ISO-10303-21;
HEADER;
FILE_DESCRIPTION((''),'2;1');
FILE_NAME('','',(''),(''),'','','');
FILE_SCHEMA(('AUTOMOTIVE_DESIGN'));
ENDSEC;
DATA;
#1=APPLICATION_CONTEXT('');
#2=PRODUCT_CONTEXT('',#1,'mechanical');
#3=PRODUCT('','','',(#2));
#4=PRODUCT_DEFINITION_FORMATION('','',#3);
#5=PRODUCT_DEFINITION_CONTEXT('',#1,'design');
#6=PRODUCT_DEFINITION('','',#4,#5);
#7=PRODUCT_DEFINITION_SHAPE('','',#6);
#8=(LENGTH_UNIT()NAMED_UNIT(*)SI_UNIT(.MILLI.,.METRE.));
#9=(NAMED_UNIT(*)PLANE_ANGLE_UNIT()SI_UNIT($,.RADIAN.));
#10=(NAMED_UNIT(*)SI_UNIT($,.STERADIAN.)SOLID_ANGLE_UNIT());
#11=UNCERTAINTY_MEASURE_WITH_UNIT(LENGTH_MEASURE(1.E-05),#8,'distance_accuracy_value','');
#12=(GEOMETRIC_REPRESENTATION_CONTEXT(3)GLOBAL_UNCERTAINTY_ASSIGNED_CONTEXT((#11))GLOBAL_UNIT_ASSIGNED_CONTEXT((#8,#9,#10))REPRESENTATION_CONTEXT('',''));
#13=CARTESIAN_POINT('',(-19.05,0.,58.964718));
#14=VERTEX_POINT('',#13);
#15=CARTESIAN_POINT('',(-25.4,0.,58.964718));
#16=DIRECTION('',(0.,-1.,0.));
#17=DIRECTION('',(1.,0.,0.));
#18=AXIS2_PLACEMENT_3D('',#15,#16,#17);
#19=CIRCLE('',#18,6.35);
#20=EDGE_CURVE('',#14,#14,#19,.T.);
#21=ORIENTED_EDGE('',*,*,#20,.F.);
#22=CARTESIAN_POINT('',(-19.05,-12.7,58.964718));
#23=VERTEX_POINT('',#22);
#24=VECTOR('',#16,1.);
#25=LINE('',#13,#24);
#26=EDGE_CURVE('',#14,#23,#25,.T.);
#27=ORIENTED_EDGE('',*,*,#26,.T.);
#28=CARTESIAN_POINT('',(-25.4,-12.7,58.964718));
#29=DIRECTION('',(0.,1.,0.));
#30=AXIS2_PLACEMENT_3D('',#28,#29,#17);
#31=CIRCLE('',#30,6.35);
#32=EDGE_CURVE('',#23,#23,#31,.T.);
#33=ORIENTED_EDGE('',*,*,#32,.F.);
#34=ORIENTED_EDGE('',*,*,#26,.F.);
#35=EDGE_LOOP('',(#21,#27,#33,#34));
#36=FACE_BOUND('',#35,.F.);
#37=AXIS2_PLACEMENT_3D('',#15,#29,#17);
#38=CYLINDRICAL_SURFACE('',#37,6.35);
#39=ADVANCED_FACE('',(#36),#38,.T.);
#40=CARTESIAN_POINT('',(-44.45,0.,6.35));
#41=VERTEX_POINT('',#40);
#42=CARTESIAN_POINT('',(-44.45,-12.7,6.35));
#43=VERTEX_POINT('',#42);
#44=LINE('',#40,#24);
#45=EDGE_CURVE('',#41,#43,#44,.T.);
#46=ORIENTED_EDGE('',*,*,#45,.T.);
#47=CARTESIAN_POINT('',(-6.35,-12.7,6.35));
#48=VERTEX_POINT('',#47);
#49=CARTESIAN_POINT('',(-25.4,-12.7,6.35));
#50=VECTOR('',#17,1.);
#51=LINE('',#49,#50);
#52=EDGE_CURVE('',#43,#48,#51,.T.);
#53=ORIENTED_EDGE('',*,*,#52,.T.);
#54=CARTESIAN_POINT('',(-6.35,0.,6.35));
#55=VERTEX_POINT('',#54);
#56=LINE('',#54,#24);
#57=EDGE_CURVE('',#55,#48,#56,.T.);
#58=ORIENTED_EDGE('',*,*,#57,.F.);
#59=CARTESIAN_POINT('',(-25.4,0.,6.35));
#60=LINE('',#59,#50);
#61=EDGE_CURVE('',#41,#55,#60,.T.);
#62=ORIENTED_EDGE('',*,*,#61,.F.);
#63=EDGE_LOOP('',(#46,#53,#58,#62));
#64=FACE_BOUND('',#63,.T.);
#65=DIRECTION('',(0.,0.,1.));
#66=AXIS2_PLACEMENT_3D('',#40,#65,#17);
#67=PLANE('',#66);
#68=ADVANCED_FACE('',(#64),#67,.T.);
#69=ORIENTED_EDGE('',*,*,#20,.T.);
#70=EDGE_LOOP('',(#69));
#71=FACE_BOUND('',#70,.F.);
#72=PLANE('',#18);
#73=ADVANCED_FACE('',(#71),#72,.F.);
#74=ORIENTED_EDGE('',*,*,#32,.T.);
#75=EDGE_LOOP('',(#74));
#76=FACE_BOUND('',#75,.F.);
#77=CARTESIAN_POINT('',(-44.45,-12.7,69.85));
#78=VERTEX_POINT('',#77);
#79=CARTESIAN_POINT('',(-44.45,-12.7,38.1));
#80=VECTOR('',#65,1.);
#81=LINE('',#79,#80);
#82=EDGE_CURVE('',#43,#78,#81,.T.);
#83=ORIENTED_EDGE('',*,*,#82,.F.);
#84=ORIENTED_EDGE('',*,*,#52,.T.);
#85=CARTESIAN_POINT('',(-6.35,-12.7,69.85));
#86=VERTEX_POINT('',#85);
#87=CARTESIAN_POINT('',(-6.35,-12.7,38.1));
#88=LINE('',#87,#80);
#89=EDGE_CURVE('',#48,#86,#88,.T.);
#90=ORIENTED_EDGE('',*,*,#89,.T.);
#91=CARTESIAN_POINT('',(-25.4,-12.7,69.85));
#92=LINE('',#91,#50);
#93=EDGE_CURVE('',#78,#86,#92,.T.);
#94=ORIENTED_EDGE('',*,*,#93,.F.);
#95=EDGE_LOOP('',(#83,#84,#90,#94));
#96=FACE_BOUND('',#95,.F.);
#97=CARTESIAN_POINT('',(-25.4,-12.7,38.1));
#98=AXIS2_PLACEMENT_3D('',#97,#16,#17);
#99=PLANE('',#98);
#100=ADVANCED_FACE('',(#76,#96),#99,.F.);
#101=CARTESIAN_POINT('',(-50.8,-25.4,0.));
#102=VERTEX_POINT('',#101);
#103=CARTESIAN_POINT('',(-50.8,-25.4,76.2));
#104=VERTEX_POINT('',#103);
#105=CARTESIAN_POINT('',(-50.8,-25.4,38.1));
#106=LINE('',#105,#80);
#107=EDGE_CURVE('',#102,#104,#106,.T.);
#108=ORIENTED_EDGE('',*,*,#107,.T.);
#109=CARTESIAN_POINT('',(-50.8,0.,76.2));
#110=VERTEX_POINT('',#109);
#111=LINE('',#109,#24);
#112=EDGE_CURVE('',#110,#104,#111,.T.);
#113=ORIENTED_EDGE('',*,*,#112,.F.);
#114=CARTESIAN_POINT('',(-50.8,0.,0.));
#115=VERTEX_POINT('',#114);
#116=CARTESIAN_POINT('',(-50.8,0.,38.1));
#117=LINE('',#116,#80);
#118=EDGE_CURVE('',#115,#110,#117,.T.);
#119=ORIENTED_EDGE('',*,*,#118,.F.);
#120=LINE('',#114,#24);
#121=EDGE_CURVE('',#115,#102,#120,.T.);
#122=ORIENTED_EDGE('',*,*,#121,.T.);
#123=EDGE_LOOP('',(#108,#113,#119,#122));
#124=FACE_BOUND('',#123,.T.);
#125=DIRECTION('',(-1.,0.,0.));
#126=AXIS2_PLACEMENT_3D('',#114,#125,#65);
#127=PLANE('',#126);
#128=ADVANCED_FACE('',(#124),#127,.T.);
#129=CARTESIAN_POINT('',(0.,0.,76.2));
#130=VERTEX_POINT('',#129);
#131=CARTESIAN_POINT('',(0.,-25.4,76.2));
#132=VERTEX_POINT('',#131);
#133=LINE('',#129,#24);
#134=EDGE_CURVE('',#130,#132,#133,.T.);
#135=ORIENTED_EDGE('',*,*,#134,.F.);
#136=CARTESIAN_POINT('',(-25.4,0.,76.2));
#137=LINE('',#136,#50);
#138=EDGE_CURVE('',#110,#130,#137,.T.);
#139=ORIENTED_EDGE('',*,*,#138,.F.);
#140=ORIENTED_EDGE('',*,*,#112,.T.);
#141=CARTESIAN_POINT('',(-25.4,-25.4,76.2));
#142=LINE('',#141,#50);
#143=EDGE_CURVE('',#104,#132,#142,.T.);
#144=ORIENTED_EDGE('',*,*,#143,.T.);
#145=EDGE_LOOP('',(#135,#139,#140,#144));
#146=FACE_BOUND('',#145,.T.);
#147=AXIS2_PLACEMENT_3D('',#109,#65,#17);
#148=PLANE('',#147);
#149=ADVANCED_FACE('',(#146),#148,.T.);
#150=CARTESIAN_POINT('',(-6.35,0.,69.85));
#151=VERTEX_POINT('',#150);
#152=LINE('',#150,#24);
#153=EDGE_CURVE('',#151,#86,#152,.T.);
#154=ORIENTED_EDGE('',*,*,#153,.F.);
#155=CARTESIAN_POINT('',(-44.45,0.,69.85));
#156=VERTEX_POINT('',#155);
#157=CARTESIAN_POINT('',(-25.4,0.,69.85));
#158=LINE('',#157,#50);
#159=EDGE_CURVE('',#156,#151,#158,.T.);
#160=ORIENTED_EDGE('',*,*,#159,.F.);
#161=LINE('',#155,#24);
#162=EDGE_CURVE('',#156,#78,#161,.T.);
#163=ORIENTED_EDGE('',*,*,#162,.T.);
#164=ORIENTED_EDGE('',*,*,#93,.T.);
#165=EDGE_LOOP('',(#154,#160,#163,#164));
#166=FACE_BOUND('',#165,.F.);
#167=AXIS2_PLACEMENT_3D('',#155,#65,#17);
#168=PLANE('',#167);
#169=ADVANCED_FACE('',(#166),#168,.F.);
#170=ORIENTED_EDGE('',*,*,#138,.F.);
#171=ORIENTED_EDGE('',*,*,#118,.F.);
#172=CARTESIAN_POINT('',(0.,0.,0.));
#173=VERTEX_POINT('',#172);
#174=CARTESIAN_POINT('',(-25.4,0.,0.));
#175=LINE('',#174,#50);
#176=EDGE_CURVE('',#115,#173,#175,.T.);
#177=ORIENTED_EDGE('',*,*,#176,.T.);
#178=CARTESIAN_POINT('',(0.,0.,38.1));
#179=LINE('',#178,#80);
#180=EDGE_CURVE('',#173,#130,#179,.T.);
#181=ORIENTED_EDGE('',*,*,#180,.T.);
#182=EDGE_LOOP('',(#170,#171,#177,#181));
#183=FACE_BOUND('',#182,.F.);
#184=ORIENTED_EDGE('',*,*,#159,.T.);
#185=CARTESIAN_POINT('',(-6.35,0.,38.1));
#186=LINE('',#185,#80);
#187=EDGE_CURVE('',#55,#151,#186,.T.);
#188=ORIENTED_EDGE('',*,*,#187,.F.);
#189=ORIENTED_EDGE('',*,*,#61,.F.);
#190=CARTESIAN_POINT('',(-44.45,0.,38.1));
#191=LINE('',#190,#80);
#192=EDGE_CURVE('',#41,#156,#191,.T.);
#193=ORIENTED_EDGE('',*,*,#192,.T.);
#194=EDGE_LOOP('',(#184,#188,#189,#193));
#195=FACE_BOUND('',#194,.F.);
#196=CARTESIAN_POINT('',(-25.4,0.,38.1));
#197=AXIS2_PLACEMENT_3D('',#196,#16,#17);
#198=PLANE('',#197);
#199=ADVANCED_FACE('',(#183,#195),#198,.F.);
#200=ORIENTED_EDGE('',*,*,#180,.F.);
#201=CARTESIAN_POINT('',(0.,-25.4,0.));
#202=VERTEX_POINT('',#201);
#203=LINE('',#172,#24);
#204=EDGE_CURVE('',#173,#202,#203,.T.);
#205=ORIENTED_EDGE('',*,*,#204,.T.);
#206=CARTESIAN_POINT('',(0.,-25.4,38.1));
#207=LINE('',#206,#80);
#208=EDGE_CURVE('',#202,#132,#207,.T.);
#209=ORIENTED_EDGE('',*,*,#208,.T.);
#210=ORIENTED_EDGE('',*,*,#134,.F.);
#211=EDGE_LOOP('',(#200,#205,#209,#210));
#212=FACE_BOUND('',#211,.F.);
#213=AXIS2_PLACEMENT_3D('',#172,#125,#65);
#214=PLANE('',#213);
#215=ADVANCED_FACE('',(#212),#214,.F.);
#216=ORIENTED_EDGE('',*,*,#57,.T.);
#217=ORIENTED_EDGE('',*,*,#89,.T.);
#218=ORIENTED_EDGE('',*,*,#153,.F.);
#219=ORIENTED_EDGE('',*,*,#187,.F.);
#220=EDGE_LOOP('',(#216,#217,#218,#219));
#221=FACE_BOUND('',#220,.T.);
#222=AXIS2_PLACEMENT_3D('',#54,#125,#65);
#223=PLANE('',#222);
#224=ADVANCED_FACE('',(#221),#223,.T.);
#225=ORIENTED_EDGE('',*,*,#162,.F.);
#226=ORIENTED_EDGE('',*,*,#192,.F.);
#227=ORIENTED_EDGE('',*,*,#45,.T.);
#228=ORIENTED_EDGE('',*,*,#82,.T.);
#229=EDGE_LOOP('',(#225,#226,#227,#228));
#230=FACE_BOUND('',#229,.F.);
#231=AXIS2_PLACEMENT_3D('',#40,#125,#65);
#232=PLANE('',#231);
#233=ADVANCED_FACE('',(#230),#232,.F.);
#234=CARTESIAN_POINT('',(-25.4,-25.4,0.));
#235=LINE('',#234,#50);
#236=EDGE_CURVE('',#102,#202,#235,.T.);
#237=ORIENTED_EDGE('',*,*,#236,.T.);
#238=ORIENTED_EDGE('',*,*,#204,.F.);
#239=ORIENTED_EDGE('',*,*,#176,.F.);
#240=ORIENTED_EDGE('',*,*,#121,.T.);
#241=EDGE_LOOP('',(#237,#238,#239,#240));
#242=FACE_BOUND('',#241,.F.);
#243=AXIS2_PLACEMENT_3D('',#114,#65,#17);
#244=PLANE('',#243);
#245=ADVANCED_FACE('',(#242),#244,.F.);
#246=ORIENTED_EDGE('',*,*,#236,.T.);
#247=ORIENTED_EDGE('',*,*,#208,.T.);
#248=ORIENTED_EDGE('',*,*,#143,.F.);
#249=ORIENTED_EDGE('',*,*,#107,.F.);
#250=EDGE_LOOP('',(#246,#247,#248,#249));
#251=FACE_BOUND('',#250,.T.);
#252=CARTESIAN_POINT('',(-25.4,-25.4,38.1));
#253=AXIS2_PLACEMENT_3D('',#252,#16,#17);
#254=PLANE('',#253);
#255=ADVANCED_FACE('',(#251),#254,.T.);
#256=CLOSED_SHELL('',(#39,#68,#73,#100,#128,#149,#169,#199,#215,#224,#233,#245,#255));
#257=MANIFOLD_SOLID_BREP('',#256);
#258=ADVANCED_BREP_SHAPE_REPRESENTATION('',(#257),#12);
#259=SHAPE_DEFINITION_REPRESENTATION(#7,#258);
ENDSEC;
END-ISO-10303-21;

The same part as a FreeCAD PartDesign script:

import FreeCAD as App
import Part
import Sketcher
Q = App.Units.Quantity


def add_polygon(sketch, points):
    """Adds a closed chain of lines whose ends are joined by coincident constraints."""
    first, n = sketch.GeometryCount, len(points)
    for a, b in zip(points, points[1:] + points[:1]):
        sketch.addGeometry(Part.LineSegment(App.Vector(*a, 0), App.Vector(*b, 0)), False)
    for i in range(n):
        sketch.addConstraint(Sketcher.Constraint("Coincident", first + i, 2, first + (i + 1) % n, 1))

doc = App.newDocument("Part")
params = doc.addObject("Spreadsheet::Sheet", "Params")
for row, (alias, value) in enumerate([
    ("sketch1_width", "2 in"),
    ("sketch1_height", "3 in"),
    ("pad1_length", "1 in"),
    ("sketch2_width", "1.5 in"),
    ("sketch2_height", "2.5 in"),
    ("pocket1_length", "0.5 in"),
    ("sketch3_diameter", "0.5 in"),
    ("pad2_length", "1 in"),
], start=1):
    params.set(f"A{row}", alias)
    params.set(f"B{row}", "=" + value)
    params.setAlias(f"B{row}", alias)

body = doc.addObject("PartDesign::Body", "Body")

# Sketch on XZ plane
sketch1 = body.newObject("Sketcher::SketchObject", "Sketch")
sketch1.AttachmentSupport = (doc.getObject("XZ_Plane"), [""])
sketch1.MapMode = "FlatFace"
add_polygon(sketch1, [(-50.8, 76.2), (-50.8, 0), (0, 0), (0, 76.2)])  # lines 0-3
sketch1.addConstraint([
    Sketcher.Constraint("Vertical", 0),
    Sketcher.Constraint("Horizontal", 1),
    Sketcher.Constraint("Vertical", 2),
    Sketcher.Constraint("Horizontal", 3),
    Sketcher.Constraint("Coincident", 1, 2, -1, 1),
    Sketcher.Constraint("DistanceX", 1, 1, 1, 2, Q("2 in")),
    Sketcher.Constraint("DistanceY", 0, 2, 0, 1, Q("3 in")),
])
sketch1.setExpression("Constraints[9]", "Params.sketch1_width")
sketch1.setExpression("Constraints[10]", "Params.sketch1_height")
pad1 = body.newObject("PartDesign::Pad", "Pad")
pad1.Profile = sketch1
pad1.setExpression("Length", "Params.pad1_length")

# Sketch on XZ plane
sketch2 = body.newObject("Sketcher::SketchObject", "Sketch001")
sketch2.AttachmentSupport = (doc.getObject("XZ_Plane"), [""])
sketch2.MapMode = "FlatFace"
add_polygon(sketch2, [(-44.45, 69.85), (-44.45, 6.35), (-6.35, 6.35), (-6.35, 69.85)])  # lines 0-3
sketch2.addConstraint([
    Sketcher.Constraint("Vertical", 0),
    Sketcher.Constraint("Horizontal", 1),
    Sketcher.Constraint("Vertical", 2),
    Sketcher.Constraint("Horizontal", 3),
    Sketcher.Constraint("DistanceX", 1, 1, 1, 2, Q("1.5 in")),
    Sketcher.Constraint("DistanceY", 0, 2, 0, 1, Q("2.5 in")),
    Sketcher.Constraint("DistanceX", 0, 2, -1, 1, Q("1.75 in")),
    Sketcher.Constraint("DistanceY", -1, 1, 0, 2, Q("0.25 in")),
])
sketch2.setExpression("Constraints[8]", "Params.sketch2_width")
sketch2.setExpression("Constraints[9]", "Params.sketch2_height")
pocket1 = body.newObject("PartDesign::Pocket", "Pocket")
pocket1.Profile = sketch2
pocket1.setExpression("Length", "Params.pocket1_length")
pocket1.Reversed = True

# Sketch on XZ plane
sketch3 = body.newObject("Sketcher::SketchObject", "Sketch002")
sketch3.AttachmentSupport = (doc.getObject("XZ_Plane"), [""])
sketch3.MapMode = "FlatFace"
sketch3.addGeometry(Part.Circle(App.Vector(-25.4, 58.964718, 0), App.Vector(0, 0, 1), 6.35), False)
sketch3.addConstraint([
    Sketcher.Constraint("Diameter", 0, Q("0.5 in")),
    Sketcher.Constraint("DistanceX", 0, 3, -1, 1, Q("1 in")),
    Sketcher.Constraint("DistanceY", -1, 1, 0, 3, Q("58.964718 mm")),
])
sketch3.setExpression("Constraints[0]", "Params.sketch3_diameter")
pad2 = body.newObject("PartDesign::Pad", "Pad001")
pad2.Profile = sketch3
pad2.setExpression("Length", "Params.pad2_length")

doc.recompute()
